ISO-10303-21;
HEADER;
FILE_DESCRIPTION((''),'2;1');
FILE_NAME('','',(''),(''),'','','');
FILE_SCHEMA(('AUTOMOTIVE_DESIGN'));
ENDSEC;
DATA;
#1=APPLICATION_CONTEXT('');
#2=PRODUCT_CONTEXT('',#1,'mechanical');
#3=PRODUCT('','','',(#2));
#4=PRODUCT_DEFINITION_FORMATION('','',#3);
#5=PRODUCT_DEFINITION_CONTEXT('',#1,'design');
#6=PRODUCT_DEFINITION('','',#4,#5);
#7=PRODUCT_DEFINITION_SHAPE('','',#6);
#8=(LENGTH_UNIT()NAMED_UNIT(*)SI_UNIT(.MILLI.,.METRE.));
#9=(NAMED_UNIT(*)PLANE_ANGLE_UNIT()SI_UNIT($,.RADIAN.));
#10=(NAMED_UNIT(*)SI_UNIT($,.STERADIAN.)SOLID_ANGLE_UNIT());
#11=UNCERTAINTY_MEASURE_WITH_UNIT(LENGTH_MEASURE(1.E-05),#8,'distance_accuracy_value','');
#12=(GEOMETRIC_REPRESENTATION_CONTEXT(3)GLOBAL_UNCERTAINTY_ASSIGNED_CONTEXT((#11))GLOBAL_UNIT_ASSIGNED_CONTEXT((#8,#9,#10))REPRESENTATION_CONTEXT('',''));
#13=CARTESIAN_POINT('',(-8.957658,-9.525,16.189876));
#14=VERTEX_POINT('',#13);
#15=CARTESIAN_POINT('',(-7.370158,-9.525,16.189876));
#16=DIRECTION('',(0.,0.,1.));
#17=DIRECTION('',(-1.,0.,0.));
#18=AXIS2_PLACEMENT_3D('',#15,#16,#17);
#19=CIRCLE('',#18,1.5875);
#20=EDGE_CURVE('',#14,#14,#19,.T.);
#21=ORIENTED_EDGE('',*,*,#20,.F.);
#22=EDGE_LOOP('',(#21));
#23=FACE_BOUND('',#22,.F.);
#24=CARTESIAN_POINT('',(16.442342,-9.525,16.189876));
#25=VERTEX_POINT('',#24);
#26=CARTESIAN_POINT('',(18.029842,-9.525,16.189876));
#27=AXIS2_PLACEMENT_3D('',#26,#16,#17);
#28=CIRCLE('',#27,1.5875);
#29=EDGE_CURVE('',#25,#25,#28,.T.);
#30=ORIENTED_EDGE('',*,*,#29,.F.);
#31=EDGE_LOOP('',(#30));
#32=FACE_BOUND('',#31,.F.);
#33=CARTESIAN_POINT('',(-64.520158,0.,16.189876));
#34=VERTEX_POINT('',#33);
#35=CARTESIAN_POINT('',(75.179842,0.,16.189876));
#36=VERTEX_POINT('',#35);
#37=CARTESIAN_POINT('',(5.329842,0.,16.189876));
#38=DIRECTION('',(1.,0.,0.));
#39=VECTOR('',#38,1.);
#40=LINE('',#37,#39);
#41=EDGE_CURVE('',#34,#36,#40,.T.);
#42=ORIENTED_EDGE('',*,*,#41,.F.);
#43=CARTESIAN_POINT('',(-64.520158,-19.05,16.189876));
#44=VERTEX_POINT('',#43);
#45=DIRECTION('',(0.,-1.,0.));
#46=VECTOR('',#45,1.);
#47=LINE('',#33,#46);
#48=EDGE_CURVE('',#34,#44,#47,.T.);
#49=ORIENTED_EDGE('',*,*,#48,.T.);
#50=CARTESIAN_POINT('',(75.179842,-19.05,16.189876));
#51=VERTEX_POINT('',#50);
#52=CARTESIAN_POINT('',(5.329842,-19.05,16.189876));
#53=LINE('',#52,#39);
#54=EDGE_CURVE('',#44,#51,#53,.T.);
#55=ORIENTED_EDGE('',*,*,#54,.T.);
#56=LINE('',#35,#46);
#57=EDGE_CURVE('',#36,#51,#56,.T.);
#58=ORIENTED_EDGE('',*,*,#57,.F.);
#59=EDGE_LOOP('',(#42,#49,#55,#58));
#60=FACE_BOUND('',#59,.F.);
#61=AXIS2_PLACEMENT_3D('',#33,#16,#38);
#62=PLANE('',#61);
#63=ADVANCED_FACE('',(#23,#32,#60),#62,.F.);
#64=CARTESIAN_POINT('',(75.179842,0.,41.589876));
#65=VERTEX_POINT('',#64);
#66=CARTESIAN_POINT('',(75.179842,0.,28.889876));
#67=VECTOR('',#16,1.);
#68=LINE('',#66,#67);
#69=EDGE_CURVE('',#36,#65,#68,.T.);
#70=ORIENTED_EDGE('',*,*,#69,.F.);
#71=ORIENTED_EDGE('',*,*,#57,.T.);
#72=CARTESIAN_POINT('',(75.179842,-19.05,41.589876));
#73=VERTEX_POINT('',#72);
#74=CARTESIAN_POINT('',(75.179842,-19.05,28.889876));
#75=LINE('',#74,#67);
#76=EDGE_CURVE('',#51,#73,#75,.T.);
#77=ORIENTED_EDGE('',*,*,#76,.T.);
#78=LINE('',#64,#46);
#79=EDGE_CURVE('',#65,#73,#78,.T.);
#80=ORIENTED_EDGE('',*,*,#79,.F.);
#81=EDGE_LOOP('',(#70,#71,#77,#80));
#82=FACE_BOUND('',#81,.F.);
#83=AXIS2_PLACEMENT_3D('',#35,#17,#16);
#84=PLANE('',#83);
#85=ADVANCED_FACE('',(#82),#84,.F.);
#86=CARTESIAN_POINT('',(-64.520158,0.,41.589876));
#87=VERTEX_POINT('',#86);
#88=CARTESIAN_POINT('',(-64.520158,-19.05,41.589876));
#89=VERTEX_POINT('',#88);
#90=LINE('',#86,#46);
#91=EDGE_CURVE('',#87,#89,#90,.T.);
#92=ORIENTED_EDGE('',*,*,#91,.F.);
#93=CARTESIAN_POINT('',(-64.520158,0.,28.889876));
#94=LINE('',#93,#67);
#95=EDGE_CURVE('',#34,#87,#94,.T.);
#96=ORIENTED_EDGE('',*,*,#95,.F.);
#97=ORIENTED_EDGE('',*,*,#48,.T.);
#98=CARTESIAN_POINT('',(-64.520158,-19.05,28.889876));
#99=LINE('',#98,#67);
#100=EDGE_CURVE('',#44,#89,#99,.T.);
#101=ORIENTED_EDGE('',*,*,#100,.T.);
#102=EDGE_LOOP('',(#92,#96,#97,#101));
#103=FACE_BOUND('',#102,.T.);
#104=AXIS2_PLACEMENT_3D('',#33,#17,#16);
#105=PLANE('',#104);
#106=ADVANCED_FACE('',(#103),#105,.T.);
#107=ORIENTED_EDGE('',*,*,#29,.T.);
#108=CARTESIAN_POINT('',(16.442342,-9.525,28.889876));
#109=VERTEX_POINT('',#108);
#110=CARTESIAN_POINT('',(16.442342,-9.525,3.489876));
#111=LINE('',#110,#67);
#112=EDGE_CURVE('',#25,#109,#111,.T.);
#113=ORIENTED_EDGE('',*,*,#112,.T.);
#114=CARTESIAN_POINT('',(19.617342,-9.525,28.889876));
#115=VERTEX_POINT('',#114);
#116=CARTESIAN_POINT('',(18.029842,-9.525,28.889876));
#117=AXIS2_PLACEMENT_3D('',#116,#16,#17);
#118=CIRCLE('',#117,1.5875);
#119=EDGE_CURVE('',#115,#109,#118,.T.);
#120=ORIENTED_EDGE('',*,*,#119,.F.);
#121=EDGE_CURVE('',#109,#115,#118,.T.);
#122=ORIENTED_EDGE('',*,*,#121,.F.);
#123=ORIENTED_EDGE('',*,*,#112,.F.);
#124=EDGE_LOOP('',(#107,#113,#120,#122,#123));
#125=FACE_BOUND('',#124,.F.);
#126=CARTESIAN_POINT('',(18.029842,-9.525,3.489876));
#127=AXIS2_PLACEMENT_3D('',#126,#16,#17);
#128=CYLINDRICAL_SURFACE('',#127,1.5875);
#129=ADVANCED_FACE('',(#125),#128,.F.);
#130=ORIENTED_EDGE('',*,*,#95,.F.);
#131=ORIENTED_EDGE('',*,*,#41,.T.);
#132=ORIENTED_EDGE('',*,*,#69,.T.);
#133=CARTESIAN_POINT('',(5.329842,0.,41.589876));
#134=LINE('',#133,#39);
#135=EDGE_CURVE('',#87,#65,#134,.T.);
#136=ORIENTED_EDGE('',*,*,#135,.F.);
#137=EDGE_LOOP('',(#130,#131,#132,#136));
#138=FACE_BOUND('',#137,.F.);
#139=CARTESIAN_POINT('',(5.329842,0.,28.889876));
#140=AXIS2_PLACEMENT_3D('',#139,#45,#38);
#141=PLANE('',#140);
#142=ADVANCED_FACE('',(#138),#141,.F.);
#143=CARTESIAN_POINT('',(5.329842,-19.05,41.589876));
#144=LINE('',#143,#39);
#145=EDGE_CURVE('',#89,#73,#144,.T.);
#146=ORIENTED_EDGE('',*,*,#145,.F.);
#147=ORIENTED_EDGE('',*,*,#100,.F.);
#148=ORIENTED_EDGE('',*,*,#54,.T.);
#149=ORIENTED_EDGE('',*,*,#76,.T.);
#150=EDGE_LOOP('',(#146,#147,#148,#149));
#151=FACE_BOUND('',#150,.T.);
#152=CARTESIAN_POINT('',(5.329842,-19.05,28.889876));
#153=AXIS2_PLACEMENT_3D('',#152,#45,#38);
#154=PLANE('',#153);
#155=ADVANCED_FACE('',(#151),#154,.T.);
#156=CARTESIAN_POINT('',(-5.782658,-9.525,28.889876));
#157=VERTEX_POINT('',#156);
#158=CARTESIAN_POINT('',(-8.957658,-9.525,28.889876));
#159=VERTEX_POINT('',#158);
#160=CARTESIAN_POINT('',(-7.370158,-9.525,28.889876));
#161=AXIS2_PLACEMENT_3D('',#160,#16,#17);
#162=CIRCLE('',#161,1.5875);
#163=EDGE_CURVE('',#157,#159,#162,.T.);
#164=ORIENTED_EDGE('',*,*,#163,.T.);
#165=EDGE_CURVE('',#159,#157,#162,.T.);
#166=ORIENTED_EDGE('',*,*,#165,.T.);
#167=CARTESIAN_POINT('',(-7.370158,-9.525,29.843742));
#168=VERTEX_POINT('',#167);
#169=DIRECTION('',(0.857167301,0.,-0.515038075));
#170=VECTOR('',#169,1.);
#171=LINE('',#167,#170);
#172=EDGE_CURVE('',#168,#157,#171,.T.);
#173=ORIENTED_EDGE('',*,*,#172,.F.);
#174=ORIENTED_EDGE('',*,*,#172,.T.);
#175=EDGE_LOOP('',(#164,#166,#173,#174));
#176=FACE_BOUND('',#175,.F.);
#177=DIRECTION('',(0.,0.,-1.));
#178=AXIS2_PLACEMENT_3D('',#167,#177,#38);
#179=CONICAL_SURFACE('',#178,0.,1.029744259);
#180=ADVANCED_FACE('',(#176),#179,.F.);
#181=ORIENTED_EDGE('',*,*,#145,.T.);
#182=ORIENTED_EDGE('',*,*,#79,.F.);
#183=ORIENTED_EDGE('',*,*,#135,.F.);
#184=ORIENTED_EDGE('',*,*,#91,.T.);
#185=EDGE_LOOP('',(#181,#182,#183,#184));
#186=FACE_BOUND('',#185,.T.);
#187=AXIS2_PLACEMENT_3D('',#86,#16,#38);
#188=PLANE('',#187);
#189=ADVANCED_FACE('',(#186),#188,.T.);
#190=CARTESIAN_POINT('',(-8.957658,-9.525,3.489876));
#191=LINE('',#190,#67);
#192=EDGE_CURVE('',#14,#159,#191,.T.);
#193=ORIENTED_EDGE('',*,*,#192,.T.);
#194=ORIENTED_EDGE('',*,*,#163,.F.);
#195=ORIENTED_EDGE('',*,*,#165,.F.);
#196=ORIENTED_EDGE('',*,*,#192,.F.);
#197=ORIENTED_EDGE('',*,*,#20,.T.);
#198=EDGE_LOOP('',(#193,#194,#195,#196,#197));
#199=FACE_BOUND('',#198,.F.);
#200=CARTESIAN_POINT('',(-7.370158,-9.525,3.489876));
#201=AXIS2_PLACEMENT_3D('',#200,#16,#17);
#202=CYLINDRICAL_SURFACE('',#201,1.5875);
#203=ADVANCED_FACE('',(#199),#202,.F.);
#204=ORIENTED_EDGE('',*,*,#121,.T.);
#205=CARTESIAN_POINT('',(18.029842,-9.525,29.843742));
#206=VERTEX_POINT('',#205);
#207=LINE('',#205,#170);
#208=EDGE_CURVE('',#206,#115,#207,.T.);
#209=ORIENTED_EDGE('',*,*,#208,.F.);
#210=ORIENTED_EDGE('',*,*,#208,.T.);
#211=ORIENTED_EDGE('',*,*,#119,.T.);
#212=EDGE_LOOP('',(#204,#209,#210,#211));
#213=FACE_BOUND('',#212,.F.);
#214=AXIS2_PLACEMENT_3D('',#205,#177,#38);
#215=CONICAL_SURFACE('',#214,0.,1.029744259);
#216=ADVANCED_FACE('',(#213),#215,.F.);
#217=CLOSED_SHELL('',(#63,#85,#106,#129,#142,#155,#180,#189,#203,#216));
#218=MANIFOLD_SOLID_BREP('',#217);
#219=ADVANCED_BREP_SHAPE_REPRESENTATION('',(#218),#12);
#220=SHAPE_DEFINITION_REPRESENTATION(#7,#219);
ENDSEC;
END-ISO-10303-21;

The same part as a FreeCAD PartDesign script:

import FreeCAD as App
import Part
import Sketcher
Q = App.Units.Quantity

doc = App.newDocument("Part")
body = doc.addObject("PartDesign::Body", "Body")

# Sketch on XZ plane
sketch1 = body.newObject("Sketcher::SketchObject", "Sketch")
sketch1.AttachmentSupport = (doc.getObject("XZ_Plane"), [""])
sketch1.MapMode = "FlatFace"
sketch1.addGeometry([
    Part.LineSegment(App.Vector(-64.520158, 41.589876, 0), App.Vector(-64.520158, 16.189876, 0)),
    Part.LineSegment(App.Vector(-64.520158, 16.189876, 0), App.Vector(75.179842, 16.189876, 0)),
    Part.LineSegment(App.Vector(75.179842, 16.189876, 0), App.Vector(75.179842, 41.589876, 0)),
    Part.LineSegment(App.Vector(75.179842, 41.589876, 0), App.Vector(-64.520158, 41.589876, 0)),
], False)
sketch1.addConstraint([
    Sketcher.Constraint("Coincident", 0, 2, 1, 1),
    Sketcher.Constraint("Coincident", 1, 2, 2, 1),
    Sketcher.Constraint("Coincident", 2, 2, 3, 1),
    Sketcher.Constraint("Coincident", 3, 2, 0, 1),
    Sketcher.Constraint("Vertical", 0),
    Sketcher.Constraint("Horizontal", 1),
    Sketcher.Constraint("Vertical", 2),
    Sketcher.Constraint("Horizontal", 3),
    Sketcher.Constraint("DistanceY", 0, 2, 0, 1, Q("1 in")),
    Sketcher.Constraint("DistanceX", 1, 1, 1, 2, Q("5.5 in")),
    Sketcher.Constraint("DistanceX", 0, 2, -1, 1, 64.520158),
    Sketcher.Constraint("DistanceY", -1, 1, 0, 2, 16.189876),
])
pad1 = body.newObject("PartDesign::Pad", "Pad")
pad1.Profile = sketch1
pad1.Length = Q("0.75 in")

# Sketch on XY plane
sketch2 = body.newObject("Sketcher::SketchObject", "Sketch001")
sketch2.AttachmentSupport = (doc.getObject("XY_Plane"), [""])
sketch2.MapMode = "FlatFace"
sketch2.AttachmentOffset = App.Placement(App.Vector(0, 0, 16.189876), App.Rotation())
sketch2.addGeometry([
    Part.Circle(App.Vector(-7.370158, -9.525, 0), App.Vector(0, 0, 1), 1.5875),
    Part.Circle(App.Vector(18.029842, -9.525, 0), App.Vector(0, 0, 1), 1.5875),
], False)
sketch2.addConstraint([
    Sketcher.Constraint("Equal", 0, 1),
    Sketcher.Constraint("Horizontal", 0, 3, 1, 3),
    Sketcher.Constraint("Diameter", 0, Q("0.125 in")),
    Sketcher.Constraint("DistanceX", 0, 3, 1, 3, Q("1 in")),
    Sketcher.Constraint("DistanceY", 0, 3, -1, 1, Q("0.375 in")),
    Sketcher.Constraint("DistanceX", 0, 3, -1, 1, 7.370158),
])
doc.recompute()
hole = body.newObject("PartDesign::Hole", "Hole")
hole.Profile = sketch2
hole.ThreadType = "None"
hole.Diameter = Q("0.125 in")
hole.DepthType = "Dimension"
hole.Depth = Q("0.5 in")
hole.DrillPoint = "Angled"
hole.DrillPointAngle = 118
hole.Reversed = True

doc.recompute()
